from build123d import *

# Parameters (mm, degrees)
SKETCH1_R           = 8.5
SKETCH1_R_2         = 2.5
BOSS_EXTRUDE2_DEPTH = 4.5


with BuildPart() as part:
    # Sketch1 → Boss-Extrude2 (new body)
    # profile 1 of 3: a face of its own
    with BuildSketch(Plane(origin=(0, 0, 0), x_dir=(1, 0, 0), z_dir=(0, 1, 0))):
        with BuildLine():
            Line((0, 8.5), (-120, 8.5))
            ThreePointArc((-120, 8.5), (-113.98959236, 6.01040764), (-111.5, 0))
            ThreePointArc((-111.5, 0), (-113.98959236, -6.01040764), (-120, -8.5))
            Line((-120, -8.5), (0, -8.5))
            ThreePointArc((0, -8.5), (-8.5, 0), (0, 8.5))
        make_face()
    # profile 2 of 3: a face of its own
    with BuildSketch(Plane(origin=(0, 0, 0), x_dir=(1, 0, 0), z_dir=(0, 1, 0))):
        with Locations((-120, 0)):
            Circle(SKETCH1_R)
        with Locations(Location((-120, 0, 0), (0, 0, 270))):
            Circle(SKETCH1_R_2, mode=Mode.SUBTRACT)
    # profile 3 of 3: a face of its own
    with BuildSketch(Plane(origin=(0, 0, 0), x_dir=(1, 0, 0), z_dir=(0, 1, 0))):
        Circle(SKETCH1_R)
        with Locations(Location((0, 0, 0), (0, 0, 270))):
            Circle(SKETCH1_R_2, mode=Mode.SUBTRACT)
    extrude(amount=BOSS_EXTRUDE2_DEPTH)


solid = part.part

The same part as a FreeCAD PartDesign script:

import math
import FreeCAD as App
import Part
import Sketcher
from FreeCAD import Vector

doc = App.newDocument("Part")
body = doc.addObject("PartDesign::Body", "Body")

sketch1 = doc.addObject("Sketcher::SketchObject", "Sketch")
body.addObject(sketch1)
sketch1.AttachmentSupport = (doc.XZ_Plane, [""])
sketch1.MapMode = "FlatFace"
sketch1.addGeometry([
    Part.LineSegment(Vector(0, -8.5, 0), Vector(-120, -8.5, 0)),
    Part.ArcOfCircle(Part.Circle(Vector(-120, 0, 0), Vector(0, 0, 1), 8.5), math.radians(90), math.radians(270)),
    Part.LineSegment(Vector(-120, 8.5, 0), Vector(0, 8.5, 0)),
    Part.ArcOfCircle(Part.Circle(Vector(0, 0, 0), Vector(0, 0, 1), 8.5), math.radians(-90), math.radians(90)),
    Part.Circle(Vector(-120, 0, 0), Vector(0, 0, 1), 2.5),
    Part.Circle(Vector(0, 0, 0), Vector(0, 0, 1), 2.5),
], False)
sketch1.addConstraint([
    Sketcher.Constraint("Tangent", 0, 2, 1, 2),
    Sketcher.Constraint("Tangent", 1, 1, 2, 1),
    Sketcher.Constraint("Tangent", 2, 2, 3, 2),
    Sketcher.Constraint("Tangent", 3, 1, 0, 1),
    Sketcher.Constraint("Horizontal", 0),
    Sketcher.Constraint("Horizontal", 2),
    Sketcher.Constraint("Coincident", 3, 3, -1, 1),
    Sketcher.Constraint("Coincident", 5, 3, -1, 1),
    Sketcher.Constraint("Coincident", 4, 3, 1, 3),
    Sketcher.Constraint("Equal", 4, 5),
    Sketcher.Constraint("Diameter", 4, 5.0),
    Sketcher.Constraint("Radius", 1, 8.5),
    Sketcher.Constraint("DistanceX", 0, 2, 0, 1, 120.0),
])
pad1 = doc.addObject("PartDesign::Pad", "Pad")
body.addObject(pad1)
pad1.Profile = sketch1
pad1.Length = 4.5
pad1.Reversed = True

doc.recompute()
